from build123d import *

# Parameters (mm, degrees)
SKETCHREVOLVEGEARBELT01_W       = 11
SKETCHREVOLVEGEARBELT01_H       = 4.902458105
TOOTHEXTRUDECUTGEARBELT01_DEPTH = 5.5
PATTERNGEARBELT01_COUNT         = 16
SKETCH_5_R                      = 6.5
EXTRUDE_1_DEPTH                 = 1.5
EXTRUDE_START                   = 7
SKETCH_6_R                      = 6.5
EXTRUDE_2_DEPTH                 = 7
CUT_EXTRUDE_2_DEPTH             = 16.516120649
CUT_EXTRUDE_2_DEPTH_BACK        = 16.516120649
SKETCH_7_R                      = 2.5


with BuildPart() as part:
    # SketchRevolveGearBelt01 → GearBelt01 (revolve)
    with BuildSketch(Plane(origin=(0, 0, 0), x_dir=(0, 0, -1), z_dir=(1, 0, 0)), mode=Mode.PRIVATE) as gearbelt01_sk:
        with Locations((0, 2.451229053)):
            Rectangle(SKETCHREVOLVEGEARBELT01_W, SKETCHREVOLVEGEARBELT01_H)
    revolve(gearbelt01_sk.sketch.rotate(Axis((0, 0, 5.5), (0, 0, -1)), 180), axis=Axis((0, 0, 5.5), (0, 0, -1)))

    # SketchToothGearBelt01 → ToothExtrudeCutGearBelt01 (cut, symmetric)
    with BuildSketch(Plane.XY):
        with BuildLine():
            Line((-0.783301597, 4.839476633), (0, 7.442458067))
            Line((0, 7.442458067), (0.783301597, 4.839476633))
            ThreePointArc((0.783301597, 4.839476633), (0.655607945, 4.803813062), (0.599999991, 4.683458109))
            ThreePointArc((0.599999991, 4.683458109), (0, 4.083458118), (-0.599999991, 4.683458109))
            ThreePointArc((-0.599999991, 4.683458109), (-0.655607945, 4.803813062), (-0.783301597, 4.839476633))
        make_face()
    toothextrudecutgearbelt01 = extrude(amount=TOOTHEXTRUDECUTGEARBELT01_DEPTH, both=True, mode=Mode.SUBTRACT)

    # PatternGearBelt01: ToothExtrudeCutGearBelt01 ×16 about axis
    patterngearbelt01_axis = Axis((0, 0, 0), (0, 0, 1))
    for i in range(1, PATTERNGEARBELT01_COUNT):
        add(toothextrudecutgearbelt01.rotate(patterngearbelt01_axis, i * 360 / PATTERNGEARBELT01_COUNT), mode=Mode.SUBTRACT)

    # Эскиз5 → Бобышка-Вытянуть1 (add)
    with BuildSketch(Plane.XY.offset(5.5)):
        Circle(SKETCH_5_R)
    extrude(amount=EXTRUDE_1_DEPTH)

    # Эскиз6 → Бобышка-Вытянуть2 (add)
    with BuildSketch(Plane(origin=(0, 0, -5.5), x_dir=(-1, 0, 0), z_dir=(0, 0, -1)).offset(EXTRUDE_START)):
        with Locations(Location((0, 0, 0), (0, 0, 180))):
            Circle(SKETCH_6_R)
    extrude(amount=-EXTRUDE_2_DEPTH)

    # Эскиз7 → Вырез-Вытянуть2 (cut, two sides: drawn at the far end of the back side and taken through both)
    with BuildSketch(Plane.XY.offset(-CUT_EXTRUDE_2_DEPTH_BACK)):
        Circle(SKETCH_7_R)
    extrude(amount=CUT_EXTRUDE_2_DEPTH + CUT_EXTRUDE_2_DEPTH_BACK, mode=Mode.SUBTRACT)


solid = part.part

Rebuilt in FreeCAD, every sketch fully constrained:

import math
import FreeCAD as App
import Part
import Sketcher

V = App.Vector
Q = App.Units.Quantity


def add_polygon(sketch, points):
    """Adds a closed chain of lines whose ends are joined by coincident constraints."""
    first, n = sketch.GeometryCount, len(points)
    for a, b in zip(points, points[1:] + points[:1]):
        sketch.addGeometry(Part.LineSegment(App.Vector(*a, 0), App.Vector(*b, 0)), False)
    for i in range(n):
        sketch.addConstraint(Sketcher.Constraint("Coincident", first + i, 2, first + (i + 1) % n, 1))

doc = App.newDocument("Part")
body = doc.addObject("PartDesign::Body", "Body")

# Sketch on YZ plane
sketch1 = body.newObject("Sketcher::SketchObject", "Sketch")
sketch1.AttachmentSupport = (doc.getObject("YZ_Plane"), [""])
sketch1.MapMode = "FlatFace"
add_polygon(sketch1, [(4.902458, 5.5), (0, 5.5), (0, -5.5), (4.902458, -5.5)])  # lines 0-3
sketch1.addConstraint(Sketcher.Constraint("Horizontal", 0))
sketch1.addConstraint(Sketcher.Constraint("Vertical", 1))
sketch1.addConstraint(Sketcher.Constraint("Horizontal", 2))
sketch1.addConstraint(Sketcher.Constraint("Vertical", 3))
sketch1.addConstraint(Sketcher.Constraint("Symmetric", 0, 2, 1, 2, -1, 1))
sketch1.addConstraint(Sketcher.Constraint("DistanceY", 1, 2, 1, 1, Q("11 mm")))
sketch1.addConstraint(Sketcher.Constraint("DistanceX", 0, 2, 0, 1, Q("4.902458 mm")))
revolution = body.newObject("PartDesign::Revolution", "Revolution")
revolution.Profile = sketch1
revolution.ReferenceAxis = (sketch1, ["V_Axis"])
revolution.Angle = 360

# Sketch on XY plane
sketch2 = body.newObject("Sketcher::SketchObject", "Sketch001")
sketch2.AttachmentSupport = (doc.getObject("XY_Plane"), [""])
sketch2.MapMode = "FlatFace"
sketch2.addGeometry(Part.LineSegment(V(0, 7.442458, 0), V(-0.783302, 4.839477, 0)), False)
sketch2.addGeometry(Part.ArcOfCircle(Part.Circle(V(-0.758049, 4.683458, 0), V(0, 0, 1), 0.158049), math.radians(0), math.radians(99.193971)), False)
sketch2.addGeometry(Part.ArcOfCircle(Part.Circle(V(0, 4.683458, 0), V(0, 0, 1), 0.6), math.radians(180), math.radians(360)), False)
sketch2.addGeometry(Part.ArcOfCircle(Part.Circle(V(0.758049, 4.683458, 0), V(0, 0, 1), 0.158049), math.radians(80.806029), math.radians(180)), False)
sketch2.addGeometry(Part.LineSegment(V(0.783302, 4.839477, 0), V(0, 7.442458, 0)), False)
sketch2.addConstraint(Sketcher.Constraint("Coincident", 0, 2, 1, 2))
sketch2.addConstraint(Sketcher.Constraint("Tangent", 1, 1, 2, 1))
sketch2.addConstraint(Sketcher.Constraint("Tangent", 2, 2, 3, 2))
sketch2.addConstraint(Sketcher.Constraint("Coincident", 3, 1, 4, 1))
sketch2.addConstraint(Sketcher.Constraint("Coincident", 4, 2, 0, 1))
sketch2.addConstraint(Sketcher.Constraint("Equal", 1, 3))
sketch2.addConstraint(Sketcher.Constraint("Symmetric", 1, 3, 3, 3, -2))
sketch2.addConstraint(Sketcher.Constraint("PointOnObject", 4, 2, -2))
sketch2.addConstraint(Sketcher.Constraint("Horizontal", 1, 3, 2, 3))
sketch2.addConstraint(Sketcher.Constraint("Horizontal", 0, 2, 3, 1))
sketch2.addConstraint(Sketcher.Constraint("Radius", 2, Q("0.6 mm")))
sketch2.addConstraint(Sketcher.Constraint("Radius", 1, Q("0.158049 mm")))
sketch2.addConstraint(Sketcher.Constraint("DistanceY", 2, 3, 4, 2, Q("2.759 mm")))
sketch2.addConstraint(Sketcher.Constraint("DistanceX", 0, 2, -1, 1, Q("0.783302 mm")))
sketch2.addConstraint(Sketcher.Constraint("DistanceY", -1, 1, 1, 3, Q("4.683458 mm")))
pocket1 = body.newObject("PartDesign::Pocket", "Pocket")
pocket1.Profile = sketch2
pocket1.Length = 11
pocket1.Midplane = True
doc.recompute()

polarpattern = body.newObject("PartDesign::PolarPattern", "PolarPattern")
polarpattern.Originals = [pocket1]
polarpattern.Axis = (doc.getObject("Z_Axis"), [""])
polarpattern.Angle = 360
polarpattern.Occurrences = 16
body.Tip = polarpattern

# Sketch on XY plane
sketch3 = body.newObject("Sketcher::SketchObject", "Sketch002")
sketch3.AttachmentSupport = (doc.getObject("XY_Plane"), [""])
sketch3.MapMode = "FlatFace"
sketch3.AttachmentOffset = App.Placement(V(0, 0, 5.5), App.Rotation())
sketch3.addGeometry(Part.Circle(V(0, 0, 0), V(0, 0, 1), 6.5), False)
sketch3.addConstraint(Sketcher.Constraint("Coincident", 0, 3, -1, 1))
sketch3.addConstraint(Sketcher.Constraint("Diameter", 0, Q("13 mm")))
pad1 = body.newObject("PartDesign::Pad", "Pad")
pad1.Profile = sketch3
pad1.Length = 1.5

# Sketch on XY plane
sketch4 = body.newObject("Sketcher::SketchObject", "Sketch003")
sketch4.AttachmentSupport = (doc.getObject("XY_Plane"), [""])
sketch4.MapMode = "FlatFace"
sketch4.AttachmentOffset = App.Placement(V(0, 0, -12.5), App.Rotation())
sketch4.addGeometry(Part.Circle(V(0, 0, 0), V(0, 0, 1), 6.5), False)
sketch4.addConstraint(Sketcher.Constraint("Coincident", 0, 3, -1, 1))
sketch4.addConstraint(Sketcher.Constraint("Diameter", 0, Q("13 mm")))
pad2 = body.newObject("PartDesign::Pad", "Pad001")
pad2.Profile = sketch4
pad2.Length = 7

# Sketch on XY plane
sketch5 = body.newObject("Sketcher::SketchObject", "Sketch004")
sketch5.AttachmentSupport = (doc.getObject("XY_Plane"), [""])
sketch5.MapMode = "FlatFace"
sketch5.addGeometry(Part.Circle(V(0, 0, 0), V(0, 0, 1), 2.5), False)
sketch5.addConstraint(Sketcher.Constraint("Coincident", 0, 3, -1, 1))
sketch5.addConstraint(Sketcher.Constraint("Diameter", 0, Q("5 mm")))
pocket2 = body.newObject("PartDesign::Pocket", "Pocket001")
pocket2.Profile = sketch5
pocket2.Type = "ThroughAll"
pocket2.Midplane = True

doc.recompute()
